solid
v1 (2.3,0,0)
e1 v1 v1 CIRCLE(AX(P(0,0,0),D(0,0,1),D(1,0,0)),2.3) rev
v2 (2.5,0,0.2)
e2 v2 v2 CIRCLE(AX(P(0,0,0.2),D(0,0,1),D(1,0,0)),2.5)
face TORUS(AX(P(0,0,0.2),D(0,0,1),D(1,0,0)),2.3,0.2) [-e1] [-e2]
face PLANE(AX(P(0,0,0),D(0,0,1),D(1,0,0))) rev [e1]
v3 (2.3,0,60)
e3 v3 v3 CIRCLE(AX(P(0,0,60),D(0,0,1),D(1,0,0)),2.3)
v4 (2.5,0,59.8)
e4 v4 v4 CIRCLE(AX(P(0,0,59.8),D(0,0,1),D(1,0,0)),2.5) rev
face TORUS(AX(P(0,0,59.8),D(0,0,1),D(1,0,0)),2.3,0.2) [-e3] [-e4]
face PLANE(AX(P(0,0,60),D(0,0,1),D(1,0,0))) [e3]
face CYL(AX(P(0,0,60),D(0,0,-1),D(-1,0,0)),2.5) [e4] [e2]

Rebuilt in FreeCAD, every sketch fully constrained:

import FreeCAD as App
import Part
import Sketcher
from FreeCAD import Vector
Q = App.Units.Quantity


def edges_at(feature, points):
    """Names of the edges that pass closest to the given points."""
    edges = feature.Shape.Edges
    near = lambda p: min(range(len(edges)), key=lambda i: edges[i].distToShape(Part.Vertex(*p))[0])
    return sorted({f"Edge{near(p) + 1}" for p in points})

doc = App.newDocument("Part")
body = doc.addObject("PartDesign::Body", "Body")

sketch1 = doc.addObject("Sketcher::SketchObject", "Sketch")
body.addObject(sketch1)
sketch1.AttachmentSupport = (doc.XY_Plane, [""])
sketch1.MapMode = "FlatFace"
sketch1.addGeometry(Part.Circle(Vector(0, 0, 0), Vector(0, 0, 1), 2.5), False)
sketch1.addConstraint([
    Sketcher.Constraint("Coincident", 0, 3, -1, 1),
    Sketcher.Constraint("Diameter", 0, Q("5 mm")),
])
pad1 = doc.addObject("PartDesign::Pad", "Pad")
body.addObject(pad1)
pad1.Profile = sketch1
pad1.Length = 60
doc.recompute()

fillet = doc.addObject("PartDesign::Fillet", "Fillet")
body.addObject(fillet)
fillet.Base = (pad1, edges_at(pad1, [(-2.5, 0, 0), (-2.5, 0, 60)]))
fillet.Radius = 0.2

doc.recompute()
